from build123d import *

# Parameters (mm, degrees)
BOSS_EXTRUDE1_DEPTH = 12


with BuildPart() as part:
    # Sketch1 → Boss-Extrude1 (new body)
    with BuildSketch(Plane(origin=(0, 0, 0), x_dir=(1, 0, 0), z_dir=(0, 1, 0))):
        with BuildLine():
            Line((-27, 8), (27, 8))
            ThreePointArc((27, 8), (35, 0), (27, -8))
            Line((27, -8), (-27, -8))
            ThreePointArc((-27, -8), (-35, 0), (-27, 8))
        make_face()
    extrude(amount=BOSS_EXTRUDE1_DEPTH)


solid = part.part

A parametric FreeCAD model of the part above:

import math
import FreeCAD as App
import Part
import Sketcher
Q = App.Units.Quantity

doc = App.newDocument("Part")
body = doc.addObject("PartDesign::Body", "Body")

sketch1 = doc.addObject("Sketcher::SketchObject", "Sketch")
body.addObject(sketch1)
sketch1.AttachmentSupport = (doc.XZ_Plane, [""])
sketch1.MapMode = "FlatFace"
sketch1.addGeometry([
    Part.LineSegment(App.Vector(27, -8, 0), App.Vector(-27, -8, 0)),
    Part.ArcOfCircle(Part.Circle(App.Vector(-27, 0, 0), App.Vector(0, 0, 1), 8), math.radians(90), math.radians(270)),
    Part.LineSegment(App.Vector(-27, 8, 0), App.Vector(27, 8, 0)),
    Part.ArcOfCircle(Part.Circle(App.Vector(27, 0, 0), App.Vector(0, 0, 1), 8), math.radians(-90), math.radians(90)),
], False)
sketch1.addConstraint([
    Sketcher.Constraint("Tangent", 0, 2, 1, 2),
    Sketcher.Constraint("Tangent", 1, 1, 2, 1),
    Sketcher.Constraint("Tangent", 2, 2, 3, 2),
    Sketcher.Constraint("Tangent", 3, 1, 0, 1),
    Sketcher.Constraint("Horizontal", 0),
    Sketcher.Constraint("Horizontal", 2),
    Sketcher.Constraint("Symmetric", 1, 3, 3, 3, -1, 1),
    Sketcher.Constraint("Radius", 1, Q("8 mm")),
    Sketcher.Constraint("DistanceX", 0, 2, 0, 1, Q("54 mm")),
])
pad1 = doc.addObject("PartDesign::Pad", "Pad")
body.addObject(pad1)
pad1.Profile = sketch1
pad1.Length = 12
pad1.Reversed = True

doc.recompute()
